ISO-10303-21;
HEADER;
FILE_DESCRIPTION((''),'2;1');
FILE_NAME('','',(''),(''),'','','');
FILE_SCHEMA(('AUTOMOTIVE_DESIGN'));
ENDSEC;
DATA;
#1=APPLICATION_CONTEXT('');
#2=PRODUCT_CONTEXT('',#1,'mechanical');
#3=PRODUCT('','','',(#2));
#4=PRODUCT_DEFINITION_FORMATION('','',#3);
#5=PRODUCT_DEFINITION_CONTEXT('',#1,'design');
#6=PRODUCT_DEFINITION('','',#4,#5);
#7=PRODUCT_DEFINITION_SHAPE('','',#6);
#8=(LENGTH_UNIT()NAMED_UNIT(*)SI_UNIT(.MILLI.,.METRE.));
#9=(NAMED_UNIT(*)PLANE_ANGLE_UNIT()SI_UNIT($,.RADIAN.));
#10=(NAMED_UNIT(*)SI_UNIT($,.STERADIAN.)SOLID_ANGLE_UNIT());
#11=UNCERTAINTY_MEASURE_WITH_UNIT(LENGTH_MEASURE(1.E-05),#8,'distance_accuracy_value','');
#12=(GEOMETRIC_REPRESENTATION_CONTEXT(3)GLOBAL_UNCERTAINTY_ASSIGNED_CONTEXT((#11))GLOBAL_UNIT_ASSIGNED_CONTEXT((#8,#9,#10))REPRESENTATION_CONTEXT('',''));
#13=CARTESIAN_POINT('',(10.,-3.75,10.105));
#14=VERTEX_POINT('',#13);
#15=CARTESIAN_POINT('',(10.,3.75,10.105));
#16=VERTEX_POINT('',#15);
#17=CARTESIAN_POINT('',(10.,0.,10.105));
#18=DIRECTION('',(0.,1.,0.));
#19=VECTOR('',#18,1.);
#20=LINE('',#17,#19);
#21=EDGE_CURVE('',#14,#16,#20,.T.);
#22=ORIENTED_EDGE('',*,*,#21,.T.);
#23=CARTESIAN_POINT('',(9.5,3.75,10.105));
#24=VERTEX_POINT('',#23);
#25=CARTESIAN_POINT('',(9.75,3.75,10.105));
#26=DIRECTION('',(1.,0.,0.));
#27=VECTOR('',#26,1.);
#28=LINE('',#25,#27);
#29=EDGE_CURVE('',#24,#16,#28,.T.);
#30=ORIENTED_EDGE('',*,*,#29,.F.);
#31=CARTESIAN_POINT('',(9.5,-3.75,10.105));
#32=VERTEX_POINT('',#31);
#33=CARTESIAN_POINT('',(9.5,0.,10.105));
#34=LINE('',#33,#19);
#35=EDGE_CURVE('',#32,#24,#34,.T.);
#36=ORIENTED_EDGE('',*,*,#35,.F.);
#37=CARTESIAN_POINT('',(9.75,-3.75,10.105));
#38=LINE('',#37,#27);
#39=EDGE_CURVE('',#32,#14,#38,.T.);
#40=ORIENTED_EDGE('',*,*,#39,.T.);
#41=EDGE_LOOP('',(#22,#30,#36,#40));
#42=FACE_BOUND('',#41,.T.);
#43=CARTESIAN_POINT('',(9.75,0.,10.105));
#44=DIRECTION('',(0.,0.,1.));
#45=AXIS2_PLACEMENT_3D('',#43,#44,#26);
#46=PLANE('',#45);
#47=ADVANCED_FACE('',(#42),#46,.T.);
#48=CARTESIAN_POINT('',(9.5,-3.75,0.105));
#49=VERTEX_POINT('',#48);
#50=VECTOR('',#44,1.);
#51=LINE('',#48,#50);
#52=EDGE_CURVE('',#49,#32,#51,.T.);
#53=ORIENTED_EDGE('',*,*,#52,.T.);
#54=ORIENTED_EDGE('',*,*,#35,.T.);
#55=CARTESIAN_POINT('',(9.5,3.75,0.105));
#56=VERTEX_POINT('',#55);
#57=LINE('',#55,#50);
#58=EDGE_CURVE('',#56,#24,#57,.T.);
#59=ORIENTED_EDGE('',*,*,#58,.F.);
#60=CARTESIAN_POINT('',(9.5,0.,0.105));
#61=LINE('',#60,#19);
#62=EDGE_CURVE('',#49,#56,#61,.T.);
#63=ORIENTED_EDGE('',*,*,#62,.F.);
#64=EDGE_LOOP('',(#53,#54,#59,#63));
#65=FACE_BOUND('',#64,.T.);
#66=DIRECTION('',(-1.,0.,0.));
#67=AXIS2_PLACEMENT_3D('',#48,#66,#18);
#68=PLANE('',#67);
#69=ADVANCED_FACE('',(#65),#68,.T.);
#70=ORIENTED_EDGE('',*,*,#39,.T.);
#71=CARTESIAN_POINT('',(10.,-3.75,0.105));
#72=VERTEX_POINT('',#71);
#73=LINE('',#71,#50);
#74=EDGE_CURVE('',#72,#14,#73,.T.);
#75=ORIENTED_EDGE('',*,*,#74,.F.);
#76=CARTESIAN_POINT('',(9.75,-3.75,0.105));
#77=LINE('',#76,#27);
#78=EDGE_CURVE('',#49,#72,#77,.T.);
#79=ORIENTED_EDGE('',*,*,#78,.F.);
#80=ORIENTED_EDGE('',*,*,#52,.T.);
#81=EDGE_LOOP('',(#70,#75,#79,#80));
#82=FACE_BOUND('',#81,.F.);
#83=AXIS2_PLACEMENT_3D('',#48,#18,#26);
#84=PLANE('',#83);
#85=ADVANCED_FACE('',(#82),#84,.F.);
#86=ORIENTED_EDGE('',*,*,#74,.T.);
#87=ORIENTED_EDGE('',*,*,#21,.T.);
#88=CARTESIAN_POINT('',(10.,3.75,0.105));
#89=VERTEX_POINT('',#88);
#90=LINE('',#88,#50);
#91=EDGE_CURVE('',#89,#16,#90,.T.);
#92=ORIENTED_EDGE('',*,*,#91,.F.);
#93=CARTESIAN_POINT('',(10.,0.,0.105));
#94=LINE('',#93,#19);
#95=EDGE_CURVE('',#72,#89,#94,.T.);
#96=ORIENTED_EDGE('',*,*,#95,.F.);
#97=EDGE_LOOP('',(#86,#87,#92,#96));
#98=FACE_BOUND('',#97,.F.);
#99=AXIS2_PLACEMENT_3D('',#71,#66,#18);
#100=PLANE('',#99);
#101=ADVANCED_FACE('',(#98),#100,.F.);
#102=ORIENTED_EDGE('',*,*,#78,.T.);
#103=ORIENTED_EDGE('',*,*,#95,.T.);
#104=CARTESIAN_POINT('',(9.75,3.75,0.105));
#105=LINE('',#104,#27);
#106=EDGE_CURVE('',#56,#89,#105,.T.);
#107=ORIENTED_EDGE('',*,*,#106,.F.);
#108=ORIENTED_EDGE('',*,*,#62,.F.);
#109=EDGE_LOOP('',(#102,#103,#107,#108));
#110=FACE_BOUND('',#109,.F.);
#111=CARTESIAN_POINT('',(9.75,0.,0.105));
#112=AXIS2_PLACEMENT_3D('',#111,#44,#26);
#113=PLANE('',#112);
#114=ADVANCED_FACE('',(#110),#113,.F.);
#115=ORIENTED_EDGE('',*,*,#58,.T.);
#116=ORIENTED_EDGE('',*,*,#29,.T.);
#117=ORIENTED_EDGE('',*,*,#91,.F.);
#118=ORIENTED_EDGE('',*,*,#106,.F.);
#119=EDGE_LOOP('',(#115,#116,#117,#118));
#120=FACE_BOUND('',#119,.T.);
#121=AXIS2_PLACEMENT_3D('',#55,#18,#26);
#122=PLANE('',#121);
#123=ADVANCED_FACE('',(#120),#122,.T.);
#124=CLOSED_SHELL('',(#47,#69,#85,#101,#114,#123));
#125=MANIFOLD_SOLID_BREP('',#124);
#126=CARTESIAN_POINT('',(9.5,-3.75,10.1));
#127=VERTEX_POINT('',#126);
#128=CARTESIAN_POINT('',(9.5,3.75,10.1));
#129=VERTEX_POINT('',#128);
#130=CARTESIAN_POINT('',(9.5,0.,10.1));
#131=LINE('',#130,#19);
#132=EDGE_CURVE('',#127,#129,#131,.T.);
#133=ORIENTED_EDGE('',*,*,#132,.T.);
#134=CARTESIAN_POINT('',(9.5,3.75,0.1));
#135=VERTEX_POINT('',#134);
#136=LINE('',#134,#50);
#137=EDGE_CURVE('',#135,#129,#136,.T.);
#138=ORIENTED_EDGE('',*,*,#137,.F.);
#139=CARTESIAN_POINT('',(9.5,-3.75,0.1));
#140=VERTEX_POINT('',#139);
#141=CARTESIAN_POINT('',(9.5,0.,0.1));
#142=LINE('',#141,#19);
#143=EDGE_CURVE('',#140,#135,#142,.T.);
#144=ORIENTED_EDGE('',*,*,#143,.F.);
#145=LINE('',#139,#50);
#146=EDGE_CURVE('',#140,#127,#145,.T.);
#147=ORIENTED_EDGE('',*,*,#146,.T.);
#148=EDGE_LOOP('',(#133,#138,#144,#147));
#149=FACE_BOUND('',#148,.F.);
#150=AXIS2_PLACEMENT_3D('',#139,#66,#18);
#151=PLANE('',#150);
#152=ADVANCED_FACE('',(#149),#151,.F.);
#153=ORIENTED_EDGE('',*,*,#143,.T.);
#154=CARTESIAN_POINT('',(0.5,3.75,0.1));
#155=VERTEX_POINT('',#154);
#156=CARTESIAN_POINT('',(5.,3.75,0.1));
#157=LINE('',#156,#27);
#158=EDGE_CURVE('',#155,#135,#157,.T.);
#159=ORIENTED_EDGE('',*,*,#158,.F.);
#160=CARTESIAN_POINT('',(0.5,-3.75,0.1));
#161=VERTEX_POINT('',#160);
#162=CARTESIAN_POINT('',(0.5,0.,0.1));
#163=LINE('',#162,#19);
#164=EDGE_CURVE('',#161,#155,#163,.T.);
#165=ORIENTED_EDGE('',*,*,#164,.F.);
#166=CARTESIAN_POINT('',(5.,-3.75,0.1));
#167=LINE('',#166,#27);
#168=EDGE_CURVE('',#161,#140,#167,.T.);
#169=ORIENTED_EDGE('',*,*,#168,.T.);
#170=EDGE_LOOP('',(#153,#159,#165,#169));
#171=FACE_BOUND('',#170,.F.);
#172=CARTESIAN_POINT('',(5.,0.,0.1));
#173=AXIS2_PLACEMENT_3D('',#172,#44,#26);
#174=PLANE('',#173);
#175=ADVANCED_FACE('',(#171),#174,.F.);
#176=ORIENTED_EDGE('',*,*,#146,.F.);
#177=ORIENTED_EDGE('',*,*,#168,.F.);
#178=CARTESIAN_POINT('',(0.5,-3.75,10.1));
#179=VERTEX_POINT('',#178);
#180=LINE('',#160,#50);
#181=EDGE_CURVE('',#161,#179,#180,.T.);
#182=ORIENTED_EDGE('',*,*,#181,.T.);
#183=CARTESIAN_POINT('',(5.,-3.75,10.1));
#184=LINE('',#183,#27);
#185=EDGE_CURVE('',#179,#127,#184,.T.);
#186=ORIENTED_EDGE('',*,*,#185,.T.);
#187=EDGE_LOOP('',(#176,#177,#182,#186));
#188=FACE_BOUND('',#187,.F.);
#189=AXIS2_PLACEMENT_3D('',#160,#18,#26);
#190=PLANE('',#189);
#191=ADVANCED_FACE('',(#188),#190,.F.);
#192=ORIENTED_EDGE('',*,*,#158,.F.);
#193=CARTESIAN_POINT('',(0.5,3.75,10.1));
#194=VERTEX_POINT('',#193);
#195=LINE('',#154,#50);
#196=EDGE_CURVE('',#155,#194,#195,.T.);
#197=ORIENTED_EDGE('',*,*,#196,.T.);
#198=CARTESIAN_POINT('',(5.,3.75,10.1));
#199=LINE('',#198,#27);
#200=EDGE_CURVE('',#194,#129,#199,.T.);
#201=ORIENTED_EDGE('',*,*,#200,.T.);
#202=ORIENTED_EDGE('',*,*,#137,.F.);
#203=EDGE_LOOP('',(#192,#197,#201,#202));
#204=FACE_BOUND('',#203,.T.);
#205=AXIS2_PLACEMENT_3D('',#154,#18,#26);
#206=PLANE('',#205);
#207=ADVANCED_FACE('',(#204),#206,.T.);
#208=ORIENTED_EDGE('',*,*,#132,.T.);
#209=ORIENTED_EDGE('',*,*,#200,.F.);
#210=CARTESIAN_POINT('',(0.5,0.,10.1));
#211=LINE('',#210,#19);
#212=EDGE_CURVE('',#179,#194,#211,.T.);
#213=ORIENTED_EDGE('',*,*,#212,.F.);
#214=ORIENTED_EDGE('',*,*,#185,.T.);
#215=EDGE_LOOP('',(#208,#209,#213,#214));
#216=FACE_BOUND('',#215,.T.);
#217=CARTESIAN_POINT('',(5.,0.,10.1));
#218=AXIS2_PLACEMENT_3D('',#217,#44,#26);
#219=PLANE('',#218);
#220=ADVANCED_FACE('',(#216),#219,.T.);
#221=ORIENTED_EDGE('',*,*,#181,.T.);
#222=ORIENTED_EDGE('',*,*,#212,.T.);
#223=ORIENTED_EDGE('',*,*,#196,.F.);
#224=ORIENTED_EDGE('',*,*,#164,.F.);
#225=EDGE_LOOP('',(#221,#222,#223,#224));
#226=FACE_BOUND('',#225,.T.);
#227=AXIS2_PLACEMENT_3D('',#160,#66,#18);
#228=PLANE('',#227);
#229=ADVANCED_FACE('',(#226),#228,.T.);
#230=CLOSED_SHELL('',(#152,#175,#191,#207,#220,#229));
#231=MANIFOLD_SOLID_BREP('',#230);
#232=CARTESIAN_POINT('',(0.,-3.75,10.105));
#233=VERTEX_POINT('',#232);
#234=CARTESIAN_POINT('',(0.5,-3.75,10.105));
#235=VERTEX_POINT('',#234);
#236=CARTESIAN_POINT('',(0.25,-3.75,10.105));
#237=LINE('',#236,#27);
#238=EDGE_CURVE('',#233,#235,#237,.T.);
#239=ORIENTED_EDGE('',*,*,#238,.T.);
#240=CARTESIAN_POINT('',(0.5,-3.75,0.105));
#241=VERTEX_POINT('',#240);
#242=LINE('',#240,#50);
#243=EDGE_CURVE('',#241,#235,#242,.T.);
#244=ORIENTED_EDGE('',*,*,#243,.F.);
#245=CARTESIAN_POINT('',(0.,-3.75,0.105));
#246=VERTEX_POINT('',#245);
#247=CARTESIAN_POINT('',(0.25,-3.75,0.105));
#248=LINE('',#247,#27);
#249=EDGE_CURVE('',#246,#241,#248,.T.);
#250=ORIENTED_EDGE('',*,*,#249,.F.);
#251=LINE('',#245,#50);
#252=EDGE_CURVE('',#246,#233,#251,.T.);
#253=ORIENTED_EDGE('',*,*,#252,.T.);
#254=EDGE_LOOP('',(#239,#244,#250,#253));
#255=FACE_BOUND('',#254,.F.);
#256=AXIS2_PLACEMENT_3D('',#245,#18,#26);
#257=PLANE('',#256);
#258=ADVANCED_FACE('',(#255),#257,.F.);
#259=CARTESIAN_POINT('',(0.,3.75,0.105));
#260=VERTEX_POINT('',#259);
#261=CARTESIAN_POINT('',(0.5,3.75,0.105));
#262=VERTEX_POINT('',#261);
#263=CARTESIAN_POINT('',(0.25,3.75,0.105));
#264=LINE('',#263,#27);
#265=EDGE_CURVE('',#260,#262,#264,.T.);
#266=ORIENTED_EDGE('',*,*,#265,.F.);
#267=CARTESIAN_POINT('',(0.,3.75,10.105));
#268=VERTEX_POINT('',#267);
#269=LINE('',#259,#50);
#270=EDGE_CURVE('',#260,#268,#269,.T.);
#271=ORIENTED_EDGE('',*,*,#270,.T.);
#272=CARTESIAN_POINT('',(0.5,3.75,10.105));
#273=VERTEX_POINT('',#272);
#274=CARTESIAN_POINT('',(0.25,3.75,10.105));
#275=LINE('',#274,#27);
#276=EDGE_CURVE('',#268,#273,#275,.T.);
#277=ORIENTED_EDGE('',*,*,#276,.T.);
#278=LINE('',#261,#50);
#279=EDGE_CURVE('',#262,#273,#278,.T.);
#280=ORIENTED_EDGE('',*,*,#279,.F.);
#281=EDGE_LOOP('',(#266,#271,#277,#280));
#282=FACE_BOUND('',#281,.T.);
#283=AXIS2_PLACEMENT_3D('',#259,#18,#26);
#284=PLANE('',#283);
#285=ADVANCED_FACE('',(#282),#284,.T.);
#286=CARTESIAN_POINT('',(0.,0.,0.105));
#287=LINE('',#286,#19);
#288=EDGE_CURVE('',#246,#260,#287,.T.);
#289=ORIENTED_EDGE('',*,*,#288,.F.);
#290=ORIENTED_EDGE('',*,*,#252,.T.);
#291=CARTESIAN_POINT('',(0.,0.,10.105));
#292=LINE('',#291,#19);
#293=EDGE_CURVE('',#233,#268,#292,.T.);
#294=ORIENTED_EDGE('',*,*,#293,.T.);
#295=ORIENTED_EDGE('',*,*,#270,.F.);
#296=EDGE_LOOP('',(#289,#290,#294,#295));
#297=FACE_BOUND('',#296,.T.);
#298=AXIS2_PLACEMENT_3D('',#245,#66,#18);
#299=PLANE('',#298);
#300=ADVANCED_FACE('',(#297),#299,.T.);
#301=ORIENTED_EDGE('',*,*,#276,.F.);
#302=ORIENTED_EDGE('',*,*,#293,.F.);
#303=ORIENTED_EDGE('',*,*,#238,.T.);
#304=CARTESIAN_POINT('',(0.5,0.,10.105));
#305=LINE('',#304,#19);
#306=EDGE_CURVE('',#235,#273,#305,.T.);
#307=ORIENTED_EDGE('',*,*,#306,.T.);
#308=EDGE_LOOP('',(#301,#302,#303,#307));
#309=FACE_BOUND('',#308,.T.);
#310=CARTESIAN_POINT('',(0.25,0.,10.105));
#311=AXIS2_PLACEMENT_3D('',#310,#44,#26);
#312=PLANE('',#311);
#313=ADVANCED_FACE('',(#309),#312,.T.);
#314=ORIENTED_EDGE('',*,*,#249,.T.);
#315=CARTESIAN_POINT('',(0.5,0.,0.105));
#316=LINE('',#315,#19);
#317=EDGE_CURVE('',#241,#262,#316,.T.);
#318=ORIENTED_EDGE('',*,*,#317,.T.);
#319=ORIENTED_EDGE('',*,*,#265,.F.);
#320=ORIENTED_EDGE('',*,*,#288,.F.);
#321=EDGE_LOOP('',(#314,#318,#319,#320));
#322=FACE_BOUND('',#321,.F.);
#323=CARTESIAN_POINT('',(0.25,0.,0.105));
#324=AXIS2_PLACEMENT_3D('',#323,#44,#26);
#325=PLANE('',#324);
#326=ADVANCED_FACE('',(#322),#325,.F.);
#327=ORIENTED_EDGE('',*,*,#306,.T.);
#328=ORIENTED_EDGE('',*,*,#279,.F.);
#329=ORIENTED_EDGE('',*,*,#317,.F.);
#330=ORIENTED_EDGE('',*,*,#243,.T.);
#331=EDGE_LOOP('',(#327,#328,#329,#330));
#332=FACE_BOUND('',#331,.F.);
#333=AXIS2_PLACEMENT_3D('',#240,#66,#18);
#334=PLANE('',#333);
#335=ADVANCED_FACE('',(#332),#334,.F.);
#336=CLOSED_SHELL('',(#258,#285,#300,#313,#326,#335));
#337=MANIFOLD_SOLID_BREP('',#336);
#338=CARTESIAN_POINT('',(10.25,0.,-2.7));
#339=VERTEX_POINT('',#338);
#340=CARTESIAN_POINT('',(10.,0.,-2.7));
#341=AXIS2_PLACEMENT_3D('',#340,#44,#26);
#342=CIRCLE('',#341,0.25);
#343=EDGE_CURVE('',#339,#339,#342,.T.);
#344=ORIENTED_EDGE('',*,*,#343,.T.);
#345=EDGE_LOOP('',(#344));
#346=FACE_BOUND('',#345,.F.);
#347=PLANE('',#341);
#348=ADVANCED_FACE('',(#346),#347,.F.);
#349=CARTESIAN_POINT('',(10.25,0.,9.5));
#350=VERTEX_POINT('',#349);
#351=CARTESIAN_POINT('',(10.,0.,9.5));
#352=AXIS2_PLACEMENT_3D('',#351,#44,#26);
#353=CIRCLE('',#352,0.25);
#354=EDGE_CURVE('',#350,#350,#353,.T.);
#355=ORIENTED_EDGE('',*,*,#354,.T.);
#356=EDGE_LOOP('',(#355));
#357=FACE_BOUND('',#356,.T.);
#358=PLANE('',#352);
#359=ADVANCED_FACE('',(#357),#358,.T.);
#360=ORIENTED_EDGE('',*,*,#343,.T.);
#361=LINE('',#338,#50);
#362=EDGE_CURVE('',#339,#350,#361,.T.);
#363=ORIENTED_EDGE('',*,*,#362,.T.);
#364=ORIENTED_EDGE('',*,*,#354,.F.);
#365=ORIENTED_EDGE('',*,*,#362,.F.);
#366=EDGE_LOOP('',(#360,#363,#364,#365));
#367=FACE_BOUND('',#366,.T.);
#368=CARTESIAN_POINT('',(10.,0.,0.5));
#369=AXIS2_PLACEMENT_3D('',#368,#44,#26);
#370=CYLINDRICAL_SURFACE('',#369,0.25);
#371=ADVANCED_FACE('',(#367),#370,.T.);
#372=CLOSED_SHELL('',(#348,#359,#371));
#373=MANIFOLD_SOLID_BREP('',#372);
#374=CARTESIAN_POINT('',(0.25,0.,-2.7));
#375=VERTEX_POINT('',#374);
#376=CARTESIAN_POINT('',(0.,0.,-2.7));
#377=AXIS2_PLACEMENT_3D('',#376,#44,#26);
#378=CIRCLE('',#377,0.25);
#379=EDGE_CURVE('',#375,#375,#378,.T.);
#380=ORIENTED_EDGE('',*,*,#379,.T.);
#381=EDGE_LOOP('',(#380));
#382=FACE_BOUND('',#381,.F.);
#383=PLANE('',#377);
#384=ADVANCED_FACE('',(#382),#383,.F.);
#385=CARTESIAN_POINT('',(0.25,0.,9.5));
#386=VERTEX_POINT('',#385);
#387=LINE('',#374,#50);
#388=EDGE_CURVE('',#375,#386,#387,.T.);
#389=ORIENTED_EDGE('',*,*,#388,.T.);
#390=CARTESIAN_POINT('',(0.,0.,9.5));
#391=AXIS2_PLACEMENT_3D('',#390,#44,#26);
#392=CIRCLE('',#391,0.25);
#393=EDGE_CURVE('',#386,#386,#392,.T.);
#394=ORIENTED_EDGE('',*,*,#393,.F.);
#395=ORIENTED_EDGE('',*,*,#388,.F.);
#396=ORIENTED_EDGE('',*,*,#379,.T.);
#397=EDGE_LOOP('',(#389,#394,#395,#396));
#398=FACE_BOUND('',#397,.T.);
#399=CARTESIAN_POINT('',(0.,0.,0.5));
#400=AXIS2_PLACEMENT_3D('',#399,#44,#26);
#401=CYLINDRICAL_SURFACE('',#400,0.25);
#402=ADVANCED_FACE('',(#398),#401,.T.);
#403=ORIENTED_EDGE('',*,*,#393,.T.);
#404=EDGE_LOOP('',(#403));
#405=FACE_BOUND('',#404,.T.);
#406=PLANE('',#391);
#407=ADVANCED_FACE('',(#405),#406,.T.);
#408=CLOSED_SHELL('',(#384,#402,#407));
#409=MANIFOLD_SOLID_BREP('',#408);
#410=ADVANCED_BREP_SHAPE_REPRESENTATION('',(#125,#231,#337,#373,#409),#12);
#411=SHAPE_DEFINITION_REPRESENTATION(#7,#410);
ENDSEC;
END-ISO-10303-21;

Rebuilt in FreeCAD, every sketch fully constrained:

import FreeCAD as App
import Part
import Sketcher
Q = App.Units.Quantity


def add_polygon(sketch, points):
    """Adds a closed chain of lines whose ends are joined by coincident constraints."""
    first, n = sketch.GeometryCount, len(points)
    for a, b in zip(points, points[1:] + points[:1]):
        sketch.addGeometry(Part.LineSegment(App.Vector(*a, 0), App.Vector(*b, 0)), False)
    for i in range(n):
        sketch.addConstraint(Sketcher.Constraint("Coincident", first + i, 2, first + (i + 1) % n, 1))

doc = App.newDocument("Part")
body = doc.addObject("PartDesign::Body", "Body")

# Sketch on XY plane
sketch1 = body.newObject("Sketcher::SketchObject", "Sketch")
sketch1.AttachmentSupport = (doc.getObject("XY_Plane"), [""])
sketch1.MapMode = "FlatFace"
sketch1.AttachmentOffset = App.Placement(App.Vector(0, 0, 0.1), App.Rotation())
add_polygon(sketch1, [(0, 4), (0, -4), (10, -4), (10, 4)])  # lines 0-3
sketch1.addConstraint(Sketcher.Constraint("Vertical", 0))
sketch1.addConstraint(Sketcher.Constraint("Horizontal", 1))
sketch1.addConstraint(Sketcher.Constraint("Vertical", 2))
sketch1.addConstraint(Sketcher.Constraint("Horizontal", 3))
sketch1.addConstraint(Sketcher.Constraint("DistanceX", 1, 1, 1, 2, Q("9 mm")))
sketch1.addConstraint(Sketcher.Constraint("DistanceY", 0, 2, 0, 1, Q("7.5 mm")))
sketch1.addConstraint(Sketcher.Constraint("DistanceX", -1, 1, 0, 2, Q("0.5 mm")))
sketch1.addConstraint(Sketcher.Constraint("DistanceY", 0, 2, -1, 1, Q("3.75 mm")))
pad1 = body.newObject("PartDesign::Pad", "Pad")
pad1.Profile = sketch1
pad1.Length = 10
body2 = doc.addObject("PartDesign::Body", "Body001")
body2.AllowCompound = True

# Sketch on XY plane
sketch2 = body2.newObject("Sketcher::SketchObject", "Sketch001")
sketch2.AttachmentSupport = (doc.getObject("XY_Plane001"), [""])
sketch2.MapMode = "FlatFace"
sketch2.AttachmentOffset = App.Placement(App.Vector(0, 0, 0.5), App.Rotation())
sketch2.addGeometry(Part.Circle(App.Vector(0, 0, 0), App.Vector(0, 0, 1), 0.25), False)
sketch2.addGeometry(Part.Circle(App.Vector(10, 0, 0), App.Vector(0, 0, 1), 0.25), False)
sketch2.addConstraint(Sketcher.Constraint("Coincident", 0, 3, -1, 1))
sketch2.addConstraint(Sketcher.Constraint("Equal", 0, 1))
sketch2.addConstraint(Sketcher.Constraint("PointOnObject", 1, 3, -1))
sketch2.addConstraint(Sketcher.Constraint("Diameter", 0, Q("0.5 mm")))
sketch2.addConstraint(Sketcher.Constraint("DistanceX", -1, 1, 1, 3, Q("10 mm")))
pad2 = body2.newObject("PartDesign::Pad", "Pad001")
pad2.Profile = sketch2
pad2.Type = "TwoLengths"
pad2.Length = 9
pad2.Length2 = 3.2
body3 = doc.addObject("PartDesign::Body", "Body002")
body3.AllowCompound = True

# Sketch on XY plane
sketch3 = body3.newObject("Sketcher::SketchObject", "Sketch002")
sketch3.AttachmentSupport = (doc.getObject("XY_Plane002"), [""])
sketch3.MapMode = "FlatFace"
sketch3.AttachmentOffset = App.Placement(App.Vector(0, 0, 0.105), App.Rotation())
add_polygon(sketch3, [(0, 3.8), (0, -3.8), (0.5, -3.8), (0.5, 3.8)])  # lines 0-3
add_polygon(sketch3, [(9.5, 3.8), (9.5, -3.8), (10, -3.8), (10, 3.8)])  # lines 4-7
sketch3.addConstraint(Sketcher.Constraint("Vertical", 0))
sketch3.addConstraint(Sketcher.Constraint("Horizontal", 1))
sketch3.addConstraint(Sketcher.Constraint("Vertical", 2))
sketch3.addConstraint(Sketcher.Constraint("Horizontal", 3))
sketch3.addConstraint(Sketcher.Constraint("Vertical", 4))
sketch3.addConstraint(Sketcher.Constraint("Horizontal", 5))
sketch3.addConstraint(Sketcher.Constraint("Vertical", 6))
sketch3.addConstraint(Sketcher.Constraint("Horizontal", 7))
sketch3.addConstraint(Sketcher.Constraint("Symmetric", 0, 2, 3, 2, -1, 1))
sketch3.addConstraint(Sketcher.Constraint("Horizontal", 1, 2, 4, 2))
sketch3.addConstraint(Sketcher.Constraint("Horizontal", 3, 2, 6, 2))
sketch3.addConstraint(Sketcher.Constraint("Equal", 3, 5))
sketch3.addConstraint(Sketcher.Constraint("DistanceX", 1, 1, 1, 2, Q("0.5 mm")))
sketch3.addConstraint(Sketcher.Constraint("DistanceY", 0, 2, 0, 1, Q("7.5 mm")))
sketch3.addConstraint(Sketcher.Constraint("DistanceX", -1, 1, 5, 2, Q("10 mm")))
pad3 = body3.newObject("PartDesign::Pad", "Pad002")
pad3.Profile = sketch3
pad3.Length = 10

doc.recompute()
